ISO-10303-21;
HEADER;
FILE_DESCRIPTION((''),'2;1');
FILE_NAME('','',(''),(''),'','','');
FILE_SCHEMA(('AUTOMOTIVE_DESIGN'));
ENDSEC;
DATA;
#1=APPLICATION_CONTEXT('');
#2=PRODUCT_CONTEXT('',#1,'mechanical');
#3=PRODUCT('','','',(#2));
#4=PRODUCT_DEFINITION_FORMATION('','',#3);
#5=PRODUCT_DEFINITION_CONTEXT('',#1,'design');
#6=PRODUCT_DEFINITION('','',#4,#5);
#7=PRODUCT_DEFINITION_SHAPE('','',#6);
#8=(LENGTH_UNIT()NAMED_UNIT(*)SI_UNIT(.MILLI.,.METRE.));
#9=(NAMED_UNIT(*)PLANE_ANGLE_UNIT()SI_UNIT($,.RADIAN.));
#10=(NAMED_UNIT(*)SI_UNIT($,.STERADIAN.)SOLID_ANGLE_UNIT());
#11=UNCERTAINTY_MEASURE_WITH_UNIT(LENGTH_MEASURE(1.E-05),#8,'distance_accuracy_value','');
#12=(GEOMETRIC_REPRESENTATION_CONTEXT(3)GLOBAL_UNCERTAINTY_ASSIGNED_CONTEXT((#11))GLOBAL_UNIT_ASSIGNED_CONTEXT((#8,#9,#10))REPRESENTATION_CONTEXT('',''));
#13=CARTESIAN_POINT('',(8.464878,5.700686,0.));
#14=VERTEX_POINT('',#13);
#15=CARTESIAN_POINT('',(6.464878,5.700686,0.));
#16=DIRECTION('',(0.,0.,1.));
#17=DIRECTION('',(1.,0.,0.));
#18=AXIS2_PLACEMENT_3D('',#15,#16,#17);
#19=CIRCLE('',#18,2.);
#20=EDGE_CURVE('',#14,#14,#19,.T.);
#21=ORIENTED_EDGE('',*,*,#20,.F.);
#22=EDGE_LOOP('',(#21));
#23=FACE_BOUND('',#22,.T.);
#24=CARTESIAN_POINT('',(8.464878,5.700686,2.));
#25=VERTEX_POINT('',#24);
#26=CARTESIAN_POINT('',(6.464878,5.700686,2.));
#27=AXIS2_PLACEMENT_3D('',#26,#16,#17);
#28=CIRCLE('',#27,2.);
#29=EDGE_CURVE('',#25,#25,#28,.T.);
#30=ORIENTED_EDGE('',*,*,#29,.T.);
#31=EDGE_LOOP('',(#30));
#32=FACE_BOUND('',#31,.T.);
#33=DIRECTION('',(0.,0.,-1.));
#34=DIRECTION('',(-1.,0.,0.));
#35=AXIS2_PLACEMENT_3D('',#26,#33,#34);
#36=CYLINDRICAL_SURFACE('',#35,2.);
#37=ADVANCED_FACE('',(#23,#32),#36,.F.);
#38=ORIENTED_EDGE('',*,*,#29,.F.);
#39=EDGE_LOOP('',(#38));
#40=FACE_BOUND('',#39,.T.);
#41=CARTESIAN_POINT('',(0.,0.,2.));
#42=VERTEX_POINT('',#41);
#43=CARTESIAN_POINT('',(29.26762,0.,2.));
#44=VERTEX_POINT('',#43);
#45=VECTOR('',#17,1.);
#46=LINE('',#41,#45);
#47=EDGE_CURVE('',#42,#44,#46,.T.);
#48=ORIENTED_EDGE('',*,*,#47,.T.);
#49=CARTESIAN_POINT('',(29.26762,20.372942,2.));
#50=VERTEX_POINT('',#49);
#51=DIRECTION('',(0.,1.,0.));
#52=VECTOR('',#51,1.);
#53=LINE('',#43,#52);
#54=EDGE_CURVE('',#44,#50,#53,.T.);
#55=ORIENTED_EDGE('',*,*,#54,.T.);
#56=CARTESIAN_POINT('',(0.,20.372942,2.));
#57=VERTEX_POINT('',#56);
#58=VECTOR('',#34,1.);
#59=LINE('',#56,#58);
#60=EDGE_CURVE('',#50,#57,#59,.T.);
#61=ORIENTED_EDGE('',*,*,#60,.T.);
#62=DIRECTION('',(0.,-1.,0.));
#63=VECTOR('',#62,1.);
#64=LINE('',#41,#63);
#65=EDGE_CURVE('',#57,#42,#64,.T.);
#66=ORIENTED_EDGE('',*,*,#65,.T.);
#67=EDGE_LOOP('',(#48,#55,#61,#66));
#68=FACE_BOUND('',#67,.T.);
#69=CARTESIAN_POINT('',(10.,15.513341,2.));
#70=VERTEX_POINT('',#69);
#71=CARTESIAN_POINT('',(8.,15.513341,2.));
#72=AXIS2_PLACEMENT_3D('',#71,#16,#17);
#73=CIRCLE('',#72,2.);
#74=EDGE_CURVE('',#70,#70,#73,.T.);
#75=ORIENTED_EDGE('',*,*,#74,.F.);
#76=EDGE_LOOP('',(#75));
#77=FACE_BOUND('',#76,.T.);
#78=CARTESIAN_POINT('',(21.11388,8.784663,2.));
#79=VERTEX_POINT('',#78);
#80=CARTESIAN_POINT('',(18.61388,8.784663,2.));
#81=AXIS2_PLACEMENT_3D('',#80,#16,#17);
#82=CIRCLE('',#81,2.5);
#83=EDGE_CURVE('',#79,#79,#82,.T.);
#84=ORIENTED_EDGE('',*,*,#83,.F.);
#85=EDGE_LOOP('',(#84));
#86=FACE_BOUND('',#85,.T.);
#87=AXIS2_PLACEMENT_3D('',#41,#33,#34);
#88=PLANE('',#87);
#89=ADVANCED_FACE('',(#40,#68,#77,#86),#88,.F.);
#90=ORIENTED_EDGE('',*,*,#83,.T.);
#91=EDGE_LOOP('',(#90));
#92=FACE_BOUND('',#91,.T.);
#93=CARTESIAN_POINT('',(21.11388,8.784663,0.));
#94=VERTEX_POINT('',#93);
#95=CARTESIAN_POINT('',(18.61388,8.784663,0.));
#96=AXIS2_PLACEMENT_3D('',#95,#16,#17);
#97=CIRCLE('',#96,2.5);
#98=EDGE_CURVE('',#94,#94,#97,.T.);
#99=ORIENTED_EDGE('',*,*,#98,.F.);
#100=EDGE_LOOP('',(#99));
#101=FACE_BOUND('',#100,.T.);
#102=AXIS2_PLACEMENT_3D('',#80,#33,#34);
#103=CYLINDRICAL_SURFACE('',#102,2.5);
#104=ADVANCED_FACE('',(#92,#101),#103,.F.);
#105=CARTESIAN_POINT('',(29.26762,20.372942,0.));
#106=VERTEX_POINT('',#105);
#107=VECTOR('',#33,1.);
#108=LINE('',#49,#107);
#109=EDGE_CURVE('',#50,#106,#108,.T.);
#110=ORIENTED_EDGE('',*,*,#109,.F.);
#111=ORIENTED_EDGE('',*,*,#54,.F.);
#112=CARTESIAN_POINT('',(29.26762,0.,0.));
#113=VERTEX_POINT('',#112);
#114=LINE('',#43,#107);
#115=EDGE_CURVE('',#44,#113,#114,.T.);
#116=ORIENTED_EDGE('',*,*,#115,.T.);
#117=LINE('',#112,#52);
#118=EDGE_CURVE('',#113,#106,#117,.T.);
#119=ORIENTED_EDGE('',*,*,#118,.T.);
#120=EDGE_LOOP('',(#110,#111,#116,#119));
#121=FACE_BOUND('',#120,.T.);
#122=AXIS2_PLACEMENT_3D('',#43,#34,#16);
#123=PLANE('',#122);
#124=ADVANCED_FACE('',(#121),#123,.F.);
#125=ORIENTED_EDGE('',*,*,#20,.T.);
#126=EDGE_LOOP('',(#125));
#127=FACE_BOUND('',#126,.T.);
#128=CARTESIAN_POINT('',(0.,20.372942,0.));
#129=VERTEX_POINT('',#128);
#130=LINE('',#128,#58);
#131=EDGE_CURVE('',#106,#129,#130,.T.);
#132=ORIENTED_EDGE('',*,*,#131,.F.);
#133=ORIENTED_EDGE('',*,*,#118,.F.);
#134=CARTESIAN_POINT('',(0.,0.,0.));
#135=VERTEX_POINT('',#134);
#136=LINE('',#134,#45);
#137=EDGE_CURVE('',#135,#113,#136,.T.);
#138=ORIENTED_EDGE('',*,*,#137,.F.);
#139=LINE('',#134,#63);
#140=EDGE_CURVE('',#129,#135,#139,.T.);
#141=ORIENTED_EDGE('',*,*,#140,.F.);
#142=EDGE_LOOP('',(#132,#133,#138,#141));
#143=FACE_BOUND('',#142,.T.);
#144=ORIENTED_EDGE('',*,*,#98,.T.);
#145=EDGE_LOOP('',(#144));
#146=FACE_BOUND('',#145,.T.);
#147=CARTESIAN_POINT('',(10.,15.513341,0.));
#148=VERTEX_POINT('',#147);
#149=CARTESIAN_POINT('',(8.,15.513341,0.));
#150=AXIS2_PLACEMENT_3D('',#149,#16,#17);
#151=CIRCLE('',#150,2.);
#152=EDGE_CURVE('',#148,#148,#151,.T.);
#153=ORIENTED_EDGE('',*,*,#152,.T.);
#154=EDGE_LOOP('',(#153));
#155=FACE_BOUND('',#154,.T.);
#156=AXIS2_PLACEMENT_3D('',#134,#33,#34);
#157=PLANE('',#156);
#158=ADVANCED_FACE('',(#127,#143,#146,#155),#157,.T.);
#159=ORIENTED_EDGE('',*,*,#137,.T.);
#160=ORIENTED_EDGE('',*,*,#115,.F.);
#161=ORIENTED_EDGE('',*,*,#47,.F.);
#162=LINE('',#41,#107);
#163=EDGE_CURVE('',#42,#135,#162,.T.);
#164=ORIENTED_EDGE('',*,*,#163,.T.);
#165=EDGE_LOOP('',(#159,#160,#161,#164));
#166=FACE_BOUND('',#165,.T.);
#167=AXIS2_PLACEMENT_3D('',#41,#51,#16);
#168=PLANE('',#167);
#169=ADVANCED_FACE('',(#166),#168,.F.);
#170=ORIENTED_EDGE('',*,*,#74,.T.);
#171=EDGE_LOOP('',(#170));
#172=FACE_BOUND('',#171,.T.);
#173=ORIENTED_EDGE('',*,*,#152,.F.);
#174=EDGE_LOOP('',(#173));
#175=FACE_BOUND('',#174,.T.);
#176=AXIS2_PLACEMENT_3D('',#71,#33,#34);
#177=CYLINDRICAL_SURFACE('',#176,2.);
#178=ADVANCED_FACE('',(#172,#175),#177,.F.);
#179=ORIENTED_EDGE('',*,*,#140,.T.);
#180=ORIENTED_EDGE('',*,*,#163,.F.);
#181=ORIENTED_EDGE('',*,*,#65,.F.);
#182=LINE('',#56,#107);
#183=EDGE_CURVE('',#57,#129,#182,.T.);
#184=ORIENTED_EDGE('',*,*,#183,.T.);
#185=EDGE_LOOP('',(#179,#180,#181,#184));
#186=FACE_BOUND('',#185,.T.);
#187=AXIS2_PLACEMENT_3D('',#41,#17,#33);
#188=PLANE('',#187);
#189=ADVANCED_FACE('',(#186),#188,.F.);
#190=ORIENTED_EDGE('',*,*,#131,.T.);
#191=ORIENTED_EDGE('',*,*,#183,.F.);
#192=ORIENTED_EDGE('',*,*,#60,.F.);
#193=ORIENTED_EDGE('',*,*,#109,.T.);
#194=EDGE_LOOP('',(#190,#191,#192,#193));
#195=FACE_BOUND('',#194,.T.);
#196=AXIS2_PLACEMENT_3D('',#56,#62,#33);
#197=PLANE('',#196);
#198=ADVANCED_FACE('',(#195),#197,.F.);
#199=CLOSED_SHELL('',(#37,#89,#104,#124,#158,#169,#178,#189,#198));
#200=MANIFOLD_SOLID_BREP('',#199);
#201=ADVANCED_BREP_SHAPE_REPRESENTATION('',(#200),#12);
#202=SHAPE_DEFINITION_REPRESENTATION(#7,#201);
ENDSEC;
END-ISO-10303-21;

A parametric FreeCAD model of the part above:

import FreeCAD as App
import Part
import Sketcher

V = App.Vector
Q = App.Units.Quantity


def add_polygon(sketch, points):
    """Adds a closed chain of lines whose ends are joined by coincident constraints."""
    first, n = sketch.GeometryCount, len(points)
    for a, b in zip(points, points[1:] + points[:1]):
        sketch.addGeometry(Part.LineSegment(App.Vector(*a, 0), App.Vector(*b, 0)), False)
    for i in range(n):
        sketch.addConstraint(Sketcher.Constraint("Coincident", first + i, 2, first + (i + 1) % n, 1))

doc = App.newDocument("Part")
body = doc.addObject("PartDesign::Body", "Body")

# Sketch on XY plane
sketch1 = body.newObject("Sketcher::SketchObject", "Sketch")
sketch1.AttachmentSupport = (doc.getObject("XY_Plane"), [""])
sketch1.MapMode = "FlatFace"
add_polygon(sketch1, [(0, 20.4), (0, 0), (29.3, 0), (29.3, 20.4)])  # lines 0-3
sketch1.addGeometry(Part.Circle(V(6.5, 5.7, 0), V(0, 0, 1), 2), False)  # 4
sketch1.addGeometry(Part.Circle(V(18.6, 8.8, 0), V(0, 0, 1), 2.5), False)  # 5
sketch1.addGeometry(Part.Circle(V(8, 15.5, 0), V(0, 0, 1), 2), False)  # 6
sketch1.addConstraint([
    Sketcher.Constraint("Vertical", 0),
    Sketcher.Constraint("Horizontal", 1),
    Sketcher.Constraint("Vertical", 2),
    Sketcher.Constraint("Horizontal", 3),
    Sketcher.Constraint("Coincident", 0, 2, -1, 1),
    Sketcher.Constraint("Equal", 4, 6),
    Sketcher.Constraint("Diameter", 4, Q("4 mm")),
    Sketcher.Constraint("Diameter", 5, Q("5 mm")),
    Sketcher.Constraint("DistanceX", -1, 1, 6, 3, Q("8 mm")),
    Sketcher.Constraint("DistanceX", 1, 1, 1, 2, Q("29.26762 mm")),
    Sketcher.Constraint("DistanceY", 6, 3, 2, 2, Q("4.859601 mm")),
    Sketcher.Constraint("DistanceY", 0, 2, 0, 1, Q("20.372942 mm")),
    Sketcher.Constraint("DistanceX", -1, 1, 5, 3, Q("18.61388 mm")),
    Sketcher.Constraint("DistanceY", 5, 3, 6, 3, Q("6.728678 mm")),
    Sketcher.Constraint("DistanceX", -1, 1, 4, 3, Q("6.464878 mm")),
    Sketcher.Constraint("DistanceY", -1, 1, 4, 3, Q("5.700686 mm")),
])
pad1 = body.newObject("PartDesign::Pad", "Pad")
pad1.Profile = sketch1
pad1.Length = 2

doc.recompute()
